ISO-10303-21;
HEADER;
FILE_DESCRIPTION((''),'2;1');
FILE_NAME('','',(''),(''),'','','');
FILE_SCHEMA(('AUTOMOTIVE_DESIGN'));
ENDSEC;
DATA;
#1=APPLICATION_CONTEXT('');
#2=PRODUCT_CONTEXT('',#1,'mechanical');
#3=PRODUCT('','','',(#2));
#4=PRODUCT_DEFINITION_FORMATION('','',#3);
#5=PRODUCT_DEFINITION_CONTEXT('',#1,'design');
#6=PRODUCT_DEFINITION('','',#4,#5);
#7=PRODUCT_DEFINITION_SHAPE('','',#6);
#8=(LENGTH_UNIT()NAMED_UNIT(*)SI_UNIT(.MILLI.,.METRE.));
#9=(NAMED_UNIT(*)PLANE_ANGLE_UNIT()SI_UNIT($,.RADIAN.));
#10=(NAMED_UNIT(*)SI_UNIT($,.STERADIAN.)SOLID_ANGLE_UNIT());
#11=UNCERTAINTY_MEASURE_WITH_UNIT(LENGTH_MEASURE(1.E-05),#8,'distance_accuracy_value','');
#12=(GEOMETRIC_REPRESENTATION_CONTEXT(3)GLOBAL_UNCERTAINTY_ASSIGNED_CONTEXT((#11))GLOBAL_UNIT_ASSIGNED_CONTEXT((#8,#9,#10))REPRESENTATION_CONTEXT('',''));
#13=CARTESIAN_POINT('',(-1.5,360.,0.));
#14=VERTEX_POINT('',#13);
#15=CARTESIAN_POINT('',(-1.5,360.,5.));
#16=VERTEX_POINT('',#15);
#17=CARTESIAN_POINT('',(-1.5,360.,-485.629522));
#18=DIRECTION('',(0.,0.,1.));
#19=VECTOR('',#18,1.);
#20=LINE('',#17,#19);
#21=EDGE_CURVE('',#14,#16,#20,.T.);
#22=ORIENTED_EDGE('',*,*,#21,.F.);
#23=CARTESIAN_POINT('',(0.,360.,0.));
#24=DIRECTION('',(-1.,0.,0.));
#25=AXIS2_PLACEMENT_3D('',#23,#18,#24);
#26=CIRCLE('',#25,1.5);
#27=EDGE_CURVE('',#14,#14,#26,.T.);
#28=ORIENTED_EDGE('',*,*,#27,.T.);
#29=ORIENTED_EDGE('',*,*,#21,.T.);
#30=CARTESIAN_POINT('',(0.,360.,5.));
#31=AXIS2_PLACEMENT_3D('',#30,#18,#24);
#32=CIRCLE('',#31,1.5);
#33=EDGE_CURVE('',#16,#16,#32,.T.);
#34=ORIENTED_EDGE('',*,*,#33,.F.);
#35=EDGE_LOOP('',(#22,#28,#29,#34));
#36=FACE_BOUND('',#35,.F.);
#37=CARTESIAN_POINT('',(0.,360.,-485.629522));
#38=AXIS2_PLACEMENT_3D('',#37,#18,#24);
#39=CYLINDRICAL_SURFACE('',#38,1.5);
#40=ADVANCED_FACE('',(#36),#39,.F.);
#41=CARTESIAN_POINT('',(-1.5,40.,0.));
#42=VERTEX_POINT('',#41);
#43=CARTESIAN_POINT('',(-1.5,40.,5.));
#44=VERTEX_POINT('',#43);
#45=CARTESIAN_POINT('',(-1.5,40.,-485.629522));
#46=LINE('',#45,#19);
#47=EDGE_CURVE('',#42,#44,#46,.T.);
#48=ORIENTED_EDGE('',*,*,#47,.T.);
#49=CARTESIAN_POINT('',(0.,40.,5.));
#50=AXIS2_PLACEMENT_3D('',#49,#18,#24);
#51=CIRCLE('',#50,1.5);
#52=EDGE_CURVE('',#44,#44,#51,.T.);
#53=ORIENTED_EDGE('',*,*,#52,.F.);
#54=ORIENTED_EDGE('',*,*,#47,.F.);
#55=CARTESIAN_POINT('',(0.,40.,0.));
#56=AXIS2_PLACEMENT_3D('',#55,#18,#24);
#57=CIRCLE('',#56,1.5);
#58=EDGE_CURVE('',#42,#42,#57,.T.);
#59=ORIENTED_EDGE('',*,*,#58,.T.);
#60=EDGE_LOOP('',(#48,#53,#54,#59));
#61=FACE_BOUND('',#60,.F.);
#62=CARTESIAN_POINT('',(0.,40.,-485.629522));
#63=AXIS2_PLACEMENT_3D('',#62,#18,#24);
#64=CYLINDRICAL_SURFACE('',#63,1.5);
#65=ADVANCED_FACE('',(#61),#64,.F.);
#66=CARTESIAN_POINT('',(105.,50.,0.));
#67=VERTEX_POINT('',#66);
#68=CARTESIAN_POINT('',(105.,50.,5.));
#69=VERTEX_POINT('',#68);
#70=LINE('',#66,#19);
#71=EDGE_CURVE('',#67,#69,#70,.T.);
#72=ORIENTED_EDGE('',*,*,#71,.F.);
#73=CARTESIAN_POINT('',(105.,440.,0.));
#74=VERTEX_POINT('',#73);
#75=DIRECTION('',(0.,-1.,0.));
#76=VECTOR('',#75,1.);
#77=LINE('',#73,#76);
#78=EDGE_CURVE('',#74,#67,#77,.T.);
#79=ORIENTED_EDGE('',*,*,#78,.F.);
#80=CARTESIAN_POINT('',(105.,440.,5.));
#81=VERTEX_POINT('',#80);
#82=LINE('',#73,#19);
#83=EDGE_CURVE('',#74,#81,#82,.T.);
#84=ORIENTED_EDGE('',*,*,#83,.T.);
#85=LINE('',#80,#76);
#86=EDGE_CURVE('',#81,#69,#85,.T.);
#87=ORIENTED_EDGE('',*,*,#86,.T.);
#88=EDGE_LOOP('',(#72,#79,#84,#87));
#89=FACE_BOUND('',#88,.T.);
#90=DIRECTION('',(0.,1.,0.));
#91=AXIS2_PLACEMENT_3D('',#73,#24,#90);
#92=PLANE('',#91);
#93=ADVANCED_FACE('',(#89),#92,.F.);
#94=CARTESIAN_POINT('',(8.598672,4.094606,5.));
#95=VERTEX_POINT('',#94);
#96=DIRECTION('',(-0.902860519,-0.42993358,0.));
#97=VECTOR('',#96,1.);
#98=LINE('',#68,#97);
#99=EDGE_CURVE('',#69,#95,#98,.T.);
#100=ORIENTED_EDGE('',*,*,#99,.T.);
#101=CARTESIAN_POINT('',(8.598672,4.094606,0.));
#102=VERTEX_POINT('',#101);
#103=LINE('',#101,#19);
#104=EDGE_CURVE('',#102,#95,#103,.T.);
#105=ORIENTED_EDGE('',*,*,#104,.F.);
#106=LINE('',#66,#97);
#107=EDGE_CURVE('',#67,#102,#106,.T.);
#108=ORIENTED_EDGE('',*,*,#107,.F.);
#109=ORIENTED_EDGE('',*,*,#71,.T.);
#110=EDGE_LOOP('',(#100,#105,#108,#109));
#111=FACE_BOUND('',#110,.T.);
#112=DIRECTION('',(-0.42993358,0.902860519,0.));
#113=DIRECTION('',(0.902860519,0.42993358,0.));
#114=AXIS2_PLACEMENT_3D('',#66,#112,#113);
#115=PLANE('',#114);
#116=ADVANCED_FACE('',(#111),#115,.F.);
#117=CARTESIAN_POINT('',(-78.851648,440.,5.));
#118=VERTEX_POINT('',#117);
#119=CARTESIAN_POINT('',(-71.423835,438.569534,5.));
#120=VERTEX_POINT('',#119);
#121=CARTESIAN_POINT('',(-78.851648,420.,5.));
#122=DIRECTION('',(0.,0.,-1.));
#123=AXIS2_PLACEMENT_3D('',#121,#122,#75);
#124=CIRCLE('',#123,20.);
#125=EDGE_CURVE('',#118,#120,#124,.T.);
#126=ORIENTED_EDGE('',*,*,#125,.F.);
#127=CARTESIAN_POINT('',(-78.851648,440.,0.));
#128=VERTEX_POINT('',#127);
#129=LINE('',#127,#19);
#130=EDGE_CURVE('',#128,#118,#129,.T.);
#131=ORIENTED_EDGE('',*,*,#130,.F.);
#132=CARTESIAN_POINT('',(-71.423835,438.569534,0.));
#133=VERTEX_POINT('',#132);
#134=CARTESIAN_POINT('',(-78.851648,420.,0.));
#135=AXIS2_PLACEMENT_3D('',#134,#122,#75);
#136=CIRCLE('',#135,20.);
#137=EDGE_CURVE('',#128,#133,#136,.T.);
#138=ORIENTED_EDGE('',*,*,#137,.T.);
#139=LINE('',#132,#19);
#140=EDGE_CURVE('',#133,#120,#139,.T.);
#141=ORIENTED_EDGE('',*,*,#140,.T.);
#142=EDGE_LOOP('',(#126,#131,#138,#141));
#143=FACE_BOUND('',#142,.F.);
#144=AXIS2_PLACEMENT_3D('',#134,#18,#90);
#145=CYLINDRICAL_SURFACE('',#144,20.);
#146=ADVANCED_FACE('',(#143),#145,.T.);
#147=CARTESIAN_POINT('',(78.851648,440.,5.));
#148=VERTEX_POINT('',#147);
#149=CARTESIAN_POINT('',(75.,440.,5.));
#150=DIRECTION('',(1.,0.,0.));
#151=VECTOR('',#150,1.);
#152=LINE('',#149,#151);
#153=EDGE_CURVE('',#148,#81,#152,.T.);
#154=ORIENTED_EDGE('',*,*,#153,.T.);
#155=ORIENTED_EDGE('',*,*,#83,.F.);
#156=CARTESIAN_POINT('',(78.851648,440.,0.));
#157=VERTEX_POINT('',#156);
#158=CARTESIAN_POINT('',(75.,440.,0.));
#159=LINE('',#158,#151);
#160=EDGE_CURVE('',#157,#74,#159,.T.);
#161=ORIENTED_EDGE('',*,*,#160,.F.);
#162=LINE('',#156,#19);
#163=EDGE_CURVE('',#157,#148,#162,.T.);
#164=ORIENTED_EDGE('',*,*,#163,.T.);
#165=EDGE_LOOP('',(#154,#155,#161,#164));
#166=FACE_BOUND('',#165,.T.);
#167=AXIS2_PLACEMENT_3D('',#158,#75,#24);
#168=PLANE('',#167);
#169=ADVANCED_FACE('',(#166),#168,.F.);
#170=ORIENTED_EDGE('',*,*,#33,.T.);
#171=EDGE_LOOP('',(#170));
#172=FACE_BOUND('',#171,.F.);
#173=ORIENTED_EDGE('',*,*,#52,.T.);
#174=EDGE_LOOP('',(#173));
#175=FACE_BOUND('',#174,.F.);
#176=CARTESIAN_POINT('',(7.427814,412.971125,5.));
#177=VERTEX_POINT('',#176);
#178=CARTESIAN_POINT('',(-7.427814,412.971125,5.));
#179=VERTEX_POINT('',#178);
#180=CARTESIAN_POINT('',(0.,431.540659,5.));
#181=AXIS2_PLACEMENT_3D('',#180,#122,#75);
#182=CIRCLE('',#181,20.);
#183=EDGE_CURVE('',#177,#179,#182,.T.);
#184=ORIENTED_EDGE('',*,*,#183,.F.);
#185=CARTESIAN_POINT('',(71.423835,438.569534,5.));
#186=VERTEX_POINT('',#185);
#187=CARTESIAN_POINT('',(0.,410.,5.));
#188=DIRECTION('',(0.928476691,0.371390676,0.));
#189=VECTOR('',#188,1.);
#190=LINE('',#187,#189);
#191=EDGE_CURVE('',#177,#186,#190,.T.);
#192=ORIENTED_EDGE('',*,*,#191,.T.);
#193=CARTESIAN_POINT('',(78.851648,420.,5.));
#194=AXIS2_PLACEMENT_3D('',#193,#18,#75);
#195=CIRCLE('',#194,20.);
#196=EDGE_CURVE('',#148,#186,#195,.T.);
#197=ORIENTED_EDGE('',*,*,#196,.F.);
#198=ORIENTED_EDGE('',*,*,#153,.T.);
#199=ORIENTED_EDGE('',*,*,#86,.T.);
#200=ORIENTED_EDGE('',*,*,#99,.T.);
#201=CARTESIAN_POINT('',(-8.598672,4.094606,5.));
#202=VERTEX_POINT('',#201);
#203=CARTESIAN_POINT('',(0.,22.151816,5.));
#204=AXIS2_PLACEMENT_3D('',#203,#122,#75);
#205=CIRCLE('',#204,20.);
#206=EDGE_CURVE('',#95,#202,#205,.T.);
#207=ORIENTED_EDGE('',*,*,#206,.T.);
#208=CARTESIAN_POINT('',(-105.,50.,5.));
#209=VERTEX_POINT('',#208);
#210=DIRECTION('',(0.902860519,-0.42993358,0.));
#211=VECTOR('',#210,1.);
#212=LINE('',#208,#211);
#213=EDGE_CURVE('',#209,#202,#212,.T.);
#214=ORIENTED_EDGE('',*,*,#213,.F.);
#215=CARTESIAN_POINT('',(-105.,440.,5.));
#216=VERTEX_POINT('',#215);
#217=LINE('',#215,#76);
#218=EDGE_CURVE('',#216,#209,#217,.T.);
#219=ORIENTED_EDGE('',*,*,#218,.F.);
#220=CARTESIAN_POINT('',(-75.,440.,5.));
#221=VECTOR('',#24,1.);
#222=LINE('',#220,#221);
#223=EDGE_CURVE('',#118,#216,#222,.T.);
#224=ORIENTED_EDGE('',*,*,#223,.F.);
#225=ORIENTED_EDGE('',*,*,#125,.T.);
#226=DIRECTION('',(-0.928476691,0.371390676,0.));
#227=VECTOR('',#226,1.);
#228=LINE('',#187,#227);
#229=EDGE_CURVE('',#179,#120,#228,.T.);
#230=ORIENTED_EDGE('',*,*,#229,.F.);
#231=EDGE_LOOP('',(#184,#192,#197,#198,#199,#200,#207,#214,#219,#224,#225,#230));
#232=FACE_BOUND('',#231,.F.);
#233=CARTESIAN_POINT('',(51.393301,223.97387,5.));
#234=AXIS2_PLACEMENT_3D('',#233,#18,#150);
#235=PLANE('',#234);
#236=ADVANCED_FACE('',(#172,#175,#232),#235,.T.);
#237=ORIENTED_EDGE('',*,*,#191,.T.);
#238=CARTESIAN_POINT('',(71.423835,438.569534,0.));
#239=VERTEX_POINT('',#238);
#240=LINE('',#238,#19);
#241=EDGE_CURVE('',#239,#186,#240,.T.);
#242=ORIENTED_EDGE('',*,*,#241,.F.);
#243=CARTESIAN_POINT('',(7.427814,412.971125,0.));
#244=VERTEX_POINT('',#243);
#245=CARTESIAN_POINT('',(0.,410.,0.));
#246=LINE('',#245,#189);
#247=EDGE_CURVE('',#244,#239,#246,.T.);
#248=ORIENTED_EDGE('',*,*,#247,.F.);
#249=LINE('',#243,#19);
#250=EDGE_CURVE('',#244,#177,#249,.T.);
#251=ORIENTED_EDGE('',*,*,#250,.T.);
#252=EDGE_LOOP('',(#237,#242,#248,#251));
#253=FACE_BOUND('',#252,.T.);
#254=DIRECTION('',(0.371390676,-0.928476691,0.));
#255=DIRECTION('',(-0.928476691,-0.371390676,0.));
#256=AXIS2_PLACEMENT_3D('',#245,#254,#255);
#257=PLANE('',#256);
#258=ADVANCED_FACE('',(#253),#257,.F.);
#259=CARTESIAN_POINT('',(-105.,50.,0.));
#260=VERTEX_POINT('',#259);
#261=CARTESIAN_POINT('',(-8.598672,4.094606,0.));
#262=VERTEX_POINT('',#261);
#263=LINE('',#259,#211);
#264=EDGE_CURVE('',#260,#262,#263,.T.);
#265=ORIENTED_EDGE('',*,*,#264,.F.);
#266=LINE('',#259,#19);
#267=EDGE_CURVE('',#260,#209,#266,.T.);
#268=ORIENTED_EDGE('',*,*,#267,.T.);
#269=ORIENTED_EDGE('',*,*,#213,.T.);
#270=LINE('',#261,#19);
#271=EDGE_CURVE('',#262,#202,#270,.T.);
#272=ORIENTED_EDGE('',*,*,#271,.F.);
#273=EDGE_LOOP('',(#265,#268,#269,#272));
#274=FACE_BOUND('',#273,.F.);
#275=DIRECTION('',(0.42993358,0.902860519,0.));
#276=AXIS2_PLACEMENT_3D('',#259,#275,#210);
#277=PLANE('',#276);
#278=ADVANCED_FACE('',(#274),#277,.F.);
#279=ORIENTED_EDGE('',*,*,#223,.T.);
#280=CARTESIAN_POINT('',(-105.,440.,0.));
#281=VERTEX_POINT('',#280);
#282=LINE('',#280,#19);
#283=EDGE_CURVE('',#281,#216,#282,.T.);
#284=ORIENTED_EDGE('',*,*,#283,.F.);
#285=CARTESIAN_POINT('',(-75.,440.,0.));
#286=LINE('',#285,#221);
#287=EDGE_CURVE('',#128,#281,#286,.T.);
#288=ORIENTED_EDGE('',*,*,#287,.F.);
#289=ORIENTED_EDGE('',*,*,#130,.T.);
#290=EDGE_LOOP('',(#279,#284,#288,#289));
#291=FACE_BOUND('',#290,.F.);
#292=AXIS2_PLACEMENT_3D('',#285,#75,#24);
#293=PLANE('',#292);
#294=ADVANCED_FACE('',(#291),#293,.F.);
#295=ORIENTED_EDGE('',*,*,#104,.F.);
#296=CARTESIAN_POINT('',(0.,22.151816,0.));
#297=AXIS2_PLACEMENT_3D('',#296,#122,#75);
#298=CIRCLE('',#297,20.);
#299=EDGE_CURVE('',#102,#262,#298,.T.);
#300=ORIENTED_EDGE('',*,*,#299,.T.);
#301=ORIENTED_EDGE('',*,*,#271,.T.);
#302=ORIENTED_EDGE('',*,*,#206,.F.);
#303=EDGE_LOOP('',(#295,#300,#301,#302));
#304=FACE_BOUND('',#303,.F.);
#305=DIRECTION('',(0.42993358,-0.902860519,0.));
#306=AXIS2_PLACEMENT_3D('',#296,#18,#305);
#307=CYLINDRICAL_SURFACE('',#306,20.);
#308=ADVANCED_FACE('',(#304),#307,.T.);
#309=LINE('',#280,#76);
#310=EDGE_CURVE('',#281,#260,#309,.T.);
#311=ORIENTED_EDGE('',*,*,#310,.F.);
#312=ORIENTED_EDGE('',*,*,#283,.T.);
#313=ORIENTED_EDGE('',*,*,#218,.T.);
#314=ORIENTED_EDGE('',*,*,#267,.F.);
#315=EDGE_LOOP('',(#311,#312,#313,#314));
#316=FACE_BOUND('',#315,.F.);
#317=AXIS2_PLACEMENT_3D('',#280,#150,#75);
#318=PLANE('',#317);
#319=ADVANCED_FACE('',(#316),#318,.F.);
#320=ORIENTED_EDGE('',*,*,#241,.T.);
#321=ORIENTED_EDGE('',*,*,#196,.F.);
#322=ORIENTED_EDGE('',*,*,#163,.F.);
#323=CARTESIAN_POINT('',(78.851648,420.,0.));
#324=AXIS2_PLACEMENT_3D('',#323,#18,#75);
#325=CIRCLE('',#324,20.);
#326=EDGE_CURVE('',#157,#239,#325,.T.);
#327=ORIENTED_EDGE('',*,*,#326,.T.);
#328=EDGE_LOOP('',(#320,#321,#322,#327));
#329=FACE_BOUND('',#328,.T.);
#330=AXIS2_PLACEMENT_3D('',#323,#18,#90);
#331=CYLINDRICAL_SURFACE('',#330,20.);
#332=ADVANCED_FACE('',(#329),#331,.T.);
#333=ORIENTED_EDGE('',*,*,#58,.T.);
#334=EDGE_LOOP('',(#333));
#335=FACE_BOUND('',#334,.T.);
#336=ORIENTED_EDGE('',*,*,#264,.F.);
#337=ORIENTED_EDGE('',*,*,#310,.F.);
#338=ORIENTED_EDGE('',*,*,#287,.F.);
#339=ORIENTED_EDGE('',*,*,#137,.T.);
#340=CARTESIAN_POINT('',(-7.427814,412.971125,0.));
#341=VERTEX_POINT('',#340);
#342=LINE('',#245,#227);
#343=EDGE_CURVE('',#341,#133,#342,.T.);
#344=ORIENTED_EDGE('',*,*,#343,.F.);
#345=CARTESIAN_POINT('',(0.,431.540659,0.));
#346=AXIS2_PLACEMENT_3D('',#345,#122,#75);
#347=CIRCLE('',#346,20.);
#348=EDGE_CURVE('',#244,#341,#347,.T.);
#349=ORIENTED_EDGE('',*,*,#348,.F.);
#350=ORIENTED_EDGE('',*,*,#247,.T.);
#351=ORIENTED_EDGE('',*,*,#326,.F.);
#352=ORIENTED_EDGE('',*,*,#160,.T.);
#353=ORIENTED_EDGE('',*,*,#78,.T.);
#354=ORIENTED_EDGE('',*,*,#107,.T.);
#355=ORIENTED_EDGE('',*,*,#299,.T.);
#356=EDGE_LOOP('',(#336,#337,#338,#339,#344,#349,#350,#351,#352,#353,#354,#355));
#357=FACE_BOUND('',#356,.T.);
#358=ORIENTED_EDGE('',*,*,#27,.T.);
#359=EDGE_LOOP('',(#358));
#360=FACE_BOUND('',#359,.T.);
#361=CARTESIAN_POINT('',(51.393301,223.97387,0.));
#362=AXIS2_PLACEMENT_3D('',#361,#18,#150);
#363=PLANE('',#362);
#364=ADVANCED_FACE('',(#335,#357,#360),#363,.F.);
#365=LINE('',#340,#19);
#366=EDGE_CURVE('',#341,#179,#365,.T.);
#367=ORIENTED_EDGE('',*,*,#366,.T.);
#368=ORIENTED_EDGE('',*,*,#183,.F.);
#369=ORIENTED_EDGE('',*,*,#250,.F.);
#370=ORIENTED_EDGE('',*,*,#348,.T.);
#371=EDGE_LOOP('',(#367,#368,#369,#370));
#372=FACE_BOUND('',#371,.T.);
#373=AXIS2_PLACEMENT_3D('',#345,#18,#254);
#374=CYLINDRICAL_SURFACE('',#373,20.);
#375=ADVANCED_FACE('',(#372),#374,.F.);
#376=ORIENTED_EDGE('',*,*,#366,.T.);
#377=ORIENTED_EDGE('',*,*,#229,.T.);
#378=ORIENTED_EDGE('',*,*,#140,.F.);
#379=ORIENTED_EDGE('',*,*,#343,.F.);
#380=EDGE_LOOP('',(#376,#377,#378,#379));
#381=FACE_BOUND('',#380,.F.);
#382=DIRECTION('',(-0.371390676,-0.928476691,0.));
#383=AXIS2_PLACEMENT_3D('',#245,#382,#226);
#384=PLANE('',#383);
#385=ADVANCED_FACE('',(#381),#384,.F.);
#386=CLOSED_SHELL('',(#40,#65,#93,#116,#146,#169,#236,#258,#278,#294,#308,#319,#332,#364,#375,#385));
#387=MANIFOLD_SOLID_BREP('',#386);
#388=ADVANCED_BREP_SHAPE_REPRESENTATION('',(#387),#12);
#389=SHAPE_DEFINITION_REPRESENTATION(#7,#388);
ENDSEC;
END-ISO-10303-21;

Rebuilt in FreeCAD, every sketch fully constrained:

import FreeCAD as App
import Part
import Sketcher

V = App.Vector
Q = App.Units.Quantity


def edges_at(feature, points):
    """Names of the edges that pass closest to the given points."""
    edges = feature.Shape.Edges
    near = lambda p: min(range(len(edges)), key=lambda i: edges[i].distToShape(Part.Vertex(*p))[0])
    return sorted({f"Edge{near(p) + 1}" for p in points})


def add_polygon(sketch, points):
    """Adds a closed chain of lines whose ends are joined by coincident constraints."""
    first, n = sketch.GeometryCount, len(points)
    for a, b in zip(points, points[1:] + points[:1]):
        sketch.addGeometry(Part.LineSegment(App.Vector(*a, 0), App.Vector(*b, 0)), False)
    for i in range(n):
        sketch.addConstraint(Sketcher.Constraint("Coincident", first + i, 2, first + (i + 1) % n, 1))

doc = App.newDocument("Part")
body = doc.addObject("PartDesign::Body", "Body")

sketch1 = body.newObject("Sketcher::SketchObject", "Sketch")
sketch1.AttachmentSupport = (doc.getObject("XY_Plane"), [""])
sketch1.MapMode = "FlatFace"
add_polygon(sketch1, [(-105, 50), (0, 0), (0, 410), (-75, 440), (-105, 440)])
sketch1.addConstraint(Sketcher.Constraint("Vertical", 1))
sketch1.addConstraint(Sketcher.Constraint("Horizontal", 3))
sketch1.addConstraint(Sketcher.Constraint("Vertical", 4))
sketch1.addConstraint(Sketcher.Constraint("Coincident", 0, 2, -1, 1))
sketch1.addConstraint(Sketcher.Constraint("DistanceX", 3, 2, 3, 1, Q("30 mm")))
sketch1.addConstraint(Sketcher.Constraint("DistanceY", 1, 1, 1, 2, Q("410 mm")))
sketch1.addConstraint(Sketcher.Constraint("DistanceY", 4, 2, 4, 1, Q("390 mm")))
sketch1.addConstraint(Sketcher.Constraint("DistanceX", 2, 2, -1, 1, Q("75 mm")))
sketch1.addConstraint(Sketcher.Constraint("DistanceY", -1, 1, 2, 2, Q("440 mm")))
pad1 = body.newObject("PartDesign::Pad", "Pad")
pad1.Profile = sketch1
pad1.Length = 5
body2 = doc.addObject("PartDesign::Body", "Body001")
doc.recompute()

body2.BaseFeature = body
doc.recompute()

mirroring = doc.addObject("Part::Mirroring", "Mirroring")
mirroring.Source = body
mirroring.Base = V(0, 0, 0)
mirroring.Normal = V(1, 0, 0)
body3 = doc.addObject("PartDesign::Body", "Body002")
body3.BaseFeature = mirroring
boolean = body2.newObject("PartDesign::Boolean", "Boolean")
boolean.Type = "Fuse"
boolean.addObjects([body3])
doc.recompute()

fillet = body2.newObject("PartDesign::Fillet", "Fillet")
fillet.Base = (boolean, edges_at(boolean, [
    (0, 0, 2.5),
    (0, 410, 2.5),
    (75, 440, 2.5),
    (-75, 440, 2.5),
]))
fillet.Radius = 20

sketch2 = body2.newObject("Sketcher::SketchObject", "Sketch001")
sketch2.AttachmentSupport = (doc.getObject("XY_Plane001"), [""])
sketch2.MapMode = "FlatFace"
sketch2.addGeometry(Part.Circle(V(0, 360, 0), V(0, 0, 1), 1.5), False)
sketch2.addGeometry(Part.Circle(V(0, 40, 0), V(0, 0, 1), 1.5), False)
sketch2.addConstraint(Sketcher.Constraint("Equal", 0, 1))
sketch2.addConstraint(Sketcher.Constraint("PointOnObject", 0, 3, -2))
sketch2.addConstraint(Sketcher.Constraint("PointOnObject", 1, 3, -2))
sketch2.addConstraint(Sketcher.Constraint("Diameter", 0, Q("3 mm")))
sketch2.addConstraint(Sketcher.Constraint("DistanceY", -1, 1, 0, 3, Q("360 mm")))
sketch2.addConstraint(Sketcher.Constraint("DistanceY", -1, 1, 1, 3, Q("40 mm")))
doc.recompute()
hole = body2.newObject("PartDesign::Hole", "Hole")
hole.Profile = sketch2
hole.ThreadType = "None"
hole.Diameter = 3
hole.DepthType = "ThroughAll"
hole.Reversed = True
mirroring.Visibility = False

doc.recompute()
